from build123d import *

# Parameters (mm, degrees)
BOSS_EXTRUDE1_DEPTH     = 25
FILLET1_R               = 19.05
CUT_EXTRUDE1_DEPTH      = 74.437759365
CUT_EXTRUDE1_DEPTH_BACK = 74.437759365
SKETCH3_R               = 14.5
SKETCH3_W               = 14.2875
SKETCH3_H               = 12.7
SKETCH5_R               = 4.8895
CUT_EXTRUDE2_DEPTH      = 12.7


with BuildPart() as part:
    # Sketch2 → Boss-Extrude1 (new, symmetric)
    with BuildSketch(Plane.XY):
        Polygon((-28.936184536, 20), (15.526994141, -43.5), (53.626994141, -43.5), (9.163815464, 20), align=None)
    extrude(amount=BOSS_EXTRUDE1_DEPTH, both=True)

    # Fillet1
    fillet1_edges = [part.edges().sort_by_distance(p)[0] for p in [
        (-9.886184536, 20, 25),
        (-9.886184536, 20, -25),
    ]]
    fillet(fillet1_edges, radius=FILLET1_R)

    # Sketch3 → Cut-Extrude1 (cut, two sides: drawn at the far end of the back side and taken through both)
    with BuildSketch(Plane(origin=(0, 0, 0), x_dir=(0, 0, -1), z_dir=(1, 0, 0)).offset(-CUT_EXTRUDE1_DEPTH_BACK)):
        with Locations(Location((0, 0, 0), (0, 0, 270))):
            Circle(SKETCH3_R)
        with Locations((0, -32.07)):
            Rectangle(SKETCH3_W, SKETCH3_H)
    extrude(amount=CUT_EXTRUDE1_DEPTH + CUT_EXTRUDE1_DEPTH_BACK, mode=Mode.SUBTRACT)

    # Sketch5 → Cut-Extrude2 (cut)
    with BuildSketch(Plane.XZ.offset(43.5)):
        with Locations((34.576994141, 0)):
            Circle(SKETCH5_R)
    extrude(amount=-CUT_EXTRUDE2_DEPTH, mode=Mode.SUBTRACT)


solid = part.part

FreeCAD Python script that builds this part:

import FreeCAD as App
import Part
import Sketcher
from FreeCAD import Vector
Q = App.Units.Quantity


def edges_at(feature, points):
    """Names of the edges that pass closest to the given points."""
    edges = feature.Shape.Edges
    near = lambda p: min(range(len(edges)), key=lambda i: edges[i].distToShape(Part.Vertex(*p))[0])
    return sorted({f"Edge{near(p) + 1}" for p in points})


def add_polygon(sketch, points):
    """Adds a closed chain of lines whose ends are joined by coincident constraints."""
    first, n = sketch.GeometryCount, len(points)
    for a, b in zip(points, points[1:] + points[:1]):
        sketch.addGeometry(Part.LineSegment(App.Vector(*a, 0), App.Vector(*b, 0)), False)
    for i in range(n):
        sketch.addConstraint(Sketcher.Constraint("Coincident", first + i, 2, first + (i + 1) % n, 1))

doc = App.newDocument("Part")
body = doc.addObject("PartDesign::Body", "Body")

sketch1 = doc.addObject("Sketcher::SketchObject", "Sketch")
body.addObject(sketch1)
sketch1.AttachmentSupport = (doc.XY_Plane, [""])
sketch1.MapMode = "FlatFace"
add_polygon(sketch1, [(-29, 20), (16, -44), (54, -44), (9, 20)])
sketch1.addConstraint(Sketcher.Constraint("Horizontal", 1))
sketch1.addConstraint(Sketcher.Constraint("Horizontal", 3))
sketch1.addConstraint(Sketcher.Constraint("Parallel", 0, 2))
sketch1.addConstraint(Sketcher.Constraint("DistanceX", 1, 1, 1, 2, Q("1.5 in")))
sketch1.addConstraint(Sketcher.Constraint("Angle", 0, Q("-55 deg")))
sketch1.addConstraint(Sketcher.Constraint("DistanceY", 0, 2, 2, 2, Q("2.5 in")))
sketch1.addConstraint(Sketcher.Constraint("DistanceY", 0, 2, -1, 1, 43.5))
sketch1.addConstraint(Sketcher.Constraint("DistanceX", -1, 1, 0, 2, 15.526994))
pad1 = doc.addObject("PartDesign::Pad", "Pad")
body.addObject(pad1)
pad1.Profile = sketch1
pad1.Length = 50
pad1.Midplane = True
doc.recompute()

fillet = doc.addObject("PartDesign::Fillet", "Fillet")
body.addObject(fillet)
fillet.Base = (pad1, edges_at(pad1, [(-9.886, 20, 25), (-9.886, 20, -25)]))
fillet.Radius = Q("0.75 in")

sketch2 = doc.addObject("Sketcher::SketchObject", "Sketch001")
body.addObject(sketch2)
sketch2.AttachmentSupport = (doc.YZ_Plane, [""])
sketch2.MapMode = "FlatFace"
sketch2.addGeometry(Part.Circle(Vector(0, 0, 0), Vector(0, 0, 1), 14), False)
add_polygon(sketch2, [(-26, 7), (-38, 7), (-38, -7), (-26, -7)])
sketch2.addConstraint(Sketcher.Constraint("Horizontal", 1))
sketch2.addConstraint(Sketcher.Constraint("Vertical", 2))
sketch2.addConstraint(Sketcher.Constraint("Horizontal", 3))
sketch2.addConstraint(Sketcher.Constraint("Vertical", 4))
sketch2.addConstraint(Sketcher.Constraint("Coincident", 0, 3, -1, 1))
sketch2.addConstraint(Sketcher.Constraint("DistanceX", 1, 2, 1, 1, Q("0.5 in")))
sketch2.addConstraint(Sketcher.Constraint("Diameter", 0, 29.0))
sketch2.addConstraint(Sketcher.Constraint("DistanceY", 2, 2, 2, 1, Q("0.5625 in")))
sketch2.addConstraint(Sketcher.Constraint("DistanceY", -1, 1, 1, 2, Q("0.28125 in")))
sketch2.addConstraint(Sketcher.Constraint("DistanceX", 1, 2, -1, 1, 38.42))
pocket1 = doc.addObject("PartDesign::Pocket", "Pocket")
body.addObject(pocket1)
pocket1.Profile = sketch2
pocket1.Type = "ThroughAll"
pocket1.Midplane = True

sketch3 = doc.addObject("Sketcher::SketchObject", "Sketch002")
body.addObject(sketch3)
sketch3.AttachmentSupport = (doc.XZ_Plane, [""])
sketch3.MapMode = "FlatFace"
sketch3.AttachmentOffset = App.Placement(Vector(0, 0, 43.5), App.Rotation())
sketch3.addGeometry(Part.Circle(Vector(34.6, 0, 0), Vector(0, 0, 1), 4.9), False)
sketch3.addConstraint(Sketcher.Constraint("PointOnObject", 0, 3, -1))
sketch3.addConstraint(Sketcher.Constraint("Diameter", 0, Q("0.385 in")))
sketch3.addConstraint(Sketcher.Constraint("DistanceX", -1, 1, 0, 3, 34.576994))
pocket2 = doc.addObject("PartDesign::Pocket", "Pocket001")
body.addObject(pocket2)
pocket2.Profile = sketch3
pocket2.Length = Q("0.5 in")

doc.recompute()
